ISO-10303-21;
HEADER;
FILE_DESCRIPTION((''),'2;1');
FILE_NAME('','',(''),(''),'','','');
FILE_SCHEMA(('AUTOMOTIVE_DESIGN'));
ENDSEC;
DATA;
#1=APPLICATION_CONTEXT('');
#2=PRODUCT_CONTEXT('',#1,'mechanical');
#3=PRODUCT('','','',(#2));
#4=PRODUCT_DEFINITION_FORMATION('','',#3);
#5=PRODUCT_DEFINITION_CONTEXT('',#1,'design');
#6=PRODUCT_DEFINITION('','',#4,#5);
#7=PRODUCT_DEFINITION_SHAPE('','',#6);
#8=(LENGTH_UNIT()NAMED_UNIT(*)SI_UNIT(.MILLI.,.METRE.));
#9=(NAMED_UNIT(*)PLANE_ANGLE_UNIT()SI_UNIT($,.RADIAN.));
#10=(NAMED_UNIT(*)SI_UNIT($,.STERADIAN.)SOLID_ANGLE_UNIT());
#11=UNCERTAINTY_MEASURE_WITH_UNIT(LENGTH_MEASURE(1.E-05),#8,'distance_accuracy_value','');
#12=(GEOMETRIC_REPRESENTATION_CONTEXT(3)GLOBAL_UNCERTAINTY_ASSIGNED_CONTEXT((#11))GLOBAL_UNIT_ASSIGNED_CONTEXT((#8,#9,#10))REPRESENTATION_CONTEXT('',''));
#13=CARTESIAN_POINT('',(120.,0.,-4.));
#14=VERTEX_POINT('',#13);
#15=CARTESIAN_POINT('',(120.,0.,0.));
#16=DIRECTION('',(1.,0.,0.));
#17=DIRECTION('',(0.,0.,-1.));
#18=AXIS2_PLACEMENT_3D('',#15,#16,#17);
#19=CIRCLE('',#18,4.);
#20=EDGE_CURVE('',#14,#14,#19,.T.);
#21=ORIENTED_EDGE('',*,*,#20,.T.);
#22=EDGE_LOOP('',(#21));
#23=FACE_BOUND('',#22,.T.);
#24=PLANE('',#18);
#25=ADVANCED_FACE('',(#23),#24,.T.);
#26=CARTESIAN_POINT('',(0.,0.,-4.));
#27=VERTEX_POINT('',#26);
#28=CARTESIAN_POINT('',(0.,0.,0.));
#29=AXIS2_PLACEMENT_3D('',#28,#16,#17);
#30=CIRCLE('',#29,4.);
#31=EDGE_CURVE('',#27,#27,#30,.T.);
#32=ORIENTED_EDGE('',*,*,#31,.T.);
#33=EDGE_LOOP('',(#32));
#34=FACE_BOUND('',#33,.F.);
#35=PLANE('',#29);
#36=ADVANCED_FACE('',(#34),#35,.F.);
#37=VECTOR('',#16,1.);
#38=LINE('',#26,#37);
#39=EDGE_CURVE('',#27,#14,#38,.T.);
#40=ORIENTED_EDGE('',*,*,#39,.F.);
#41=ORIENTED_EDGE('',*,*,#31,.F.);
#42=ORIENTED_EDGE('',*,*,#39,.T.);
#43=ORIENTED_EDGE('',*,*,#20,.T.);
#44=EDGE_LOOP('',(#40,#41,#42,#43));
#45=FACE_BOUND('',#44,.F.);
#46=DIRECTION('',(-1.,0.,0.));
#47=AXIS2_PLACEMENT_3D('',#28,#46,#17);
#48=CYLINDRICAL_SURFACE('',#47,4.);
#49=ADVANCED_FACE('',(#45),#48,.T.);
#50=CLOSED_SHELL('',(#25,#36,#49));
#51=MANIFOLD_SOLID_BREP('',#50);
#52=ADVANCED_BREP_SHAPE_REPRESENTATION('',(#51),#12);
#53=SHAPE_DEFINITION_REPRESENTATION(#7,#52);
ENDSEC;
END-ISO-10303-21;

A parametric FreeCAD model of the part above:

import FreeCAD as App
import Part
import Sketcher

V = App.Vector

doc = App.newDocument("Part")
body = doc.addObject("PartDesign::Body", "Body")

# Sketch on YZ plane
sketch1 = body.newObject("Sketcher::SketchObject", "Sketch")
sketch1.AttachmentSupport = (doc.getObject("YZ_Plane"), [""])
sketch1.MapMode = "FlatFace"
sketch1.addGeometry(Part.Circle(V(0, 0, 0), V(0, 0, 1), 4), False)
sketch1.addConstraint(Sketcher.Constraint("Coincident", 0, 3, -1, 1))
sketch1.addConstraint(Sketcher.Constraint("Diameter", 0, 8.0))
pad1 = body.newObject("PartDesign::Pad", "Pad")
pad1.Profile = sketch1
pad1.Length = 120

doc.recompute()
